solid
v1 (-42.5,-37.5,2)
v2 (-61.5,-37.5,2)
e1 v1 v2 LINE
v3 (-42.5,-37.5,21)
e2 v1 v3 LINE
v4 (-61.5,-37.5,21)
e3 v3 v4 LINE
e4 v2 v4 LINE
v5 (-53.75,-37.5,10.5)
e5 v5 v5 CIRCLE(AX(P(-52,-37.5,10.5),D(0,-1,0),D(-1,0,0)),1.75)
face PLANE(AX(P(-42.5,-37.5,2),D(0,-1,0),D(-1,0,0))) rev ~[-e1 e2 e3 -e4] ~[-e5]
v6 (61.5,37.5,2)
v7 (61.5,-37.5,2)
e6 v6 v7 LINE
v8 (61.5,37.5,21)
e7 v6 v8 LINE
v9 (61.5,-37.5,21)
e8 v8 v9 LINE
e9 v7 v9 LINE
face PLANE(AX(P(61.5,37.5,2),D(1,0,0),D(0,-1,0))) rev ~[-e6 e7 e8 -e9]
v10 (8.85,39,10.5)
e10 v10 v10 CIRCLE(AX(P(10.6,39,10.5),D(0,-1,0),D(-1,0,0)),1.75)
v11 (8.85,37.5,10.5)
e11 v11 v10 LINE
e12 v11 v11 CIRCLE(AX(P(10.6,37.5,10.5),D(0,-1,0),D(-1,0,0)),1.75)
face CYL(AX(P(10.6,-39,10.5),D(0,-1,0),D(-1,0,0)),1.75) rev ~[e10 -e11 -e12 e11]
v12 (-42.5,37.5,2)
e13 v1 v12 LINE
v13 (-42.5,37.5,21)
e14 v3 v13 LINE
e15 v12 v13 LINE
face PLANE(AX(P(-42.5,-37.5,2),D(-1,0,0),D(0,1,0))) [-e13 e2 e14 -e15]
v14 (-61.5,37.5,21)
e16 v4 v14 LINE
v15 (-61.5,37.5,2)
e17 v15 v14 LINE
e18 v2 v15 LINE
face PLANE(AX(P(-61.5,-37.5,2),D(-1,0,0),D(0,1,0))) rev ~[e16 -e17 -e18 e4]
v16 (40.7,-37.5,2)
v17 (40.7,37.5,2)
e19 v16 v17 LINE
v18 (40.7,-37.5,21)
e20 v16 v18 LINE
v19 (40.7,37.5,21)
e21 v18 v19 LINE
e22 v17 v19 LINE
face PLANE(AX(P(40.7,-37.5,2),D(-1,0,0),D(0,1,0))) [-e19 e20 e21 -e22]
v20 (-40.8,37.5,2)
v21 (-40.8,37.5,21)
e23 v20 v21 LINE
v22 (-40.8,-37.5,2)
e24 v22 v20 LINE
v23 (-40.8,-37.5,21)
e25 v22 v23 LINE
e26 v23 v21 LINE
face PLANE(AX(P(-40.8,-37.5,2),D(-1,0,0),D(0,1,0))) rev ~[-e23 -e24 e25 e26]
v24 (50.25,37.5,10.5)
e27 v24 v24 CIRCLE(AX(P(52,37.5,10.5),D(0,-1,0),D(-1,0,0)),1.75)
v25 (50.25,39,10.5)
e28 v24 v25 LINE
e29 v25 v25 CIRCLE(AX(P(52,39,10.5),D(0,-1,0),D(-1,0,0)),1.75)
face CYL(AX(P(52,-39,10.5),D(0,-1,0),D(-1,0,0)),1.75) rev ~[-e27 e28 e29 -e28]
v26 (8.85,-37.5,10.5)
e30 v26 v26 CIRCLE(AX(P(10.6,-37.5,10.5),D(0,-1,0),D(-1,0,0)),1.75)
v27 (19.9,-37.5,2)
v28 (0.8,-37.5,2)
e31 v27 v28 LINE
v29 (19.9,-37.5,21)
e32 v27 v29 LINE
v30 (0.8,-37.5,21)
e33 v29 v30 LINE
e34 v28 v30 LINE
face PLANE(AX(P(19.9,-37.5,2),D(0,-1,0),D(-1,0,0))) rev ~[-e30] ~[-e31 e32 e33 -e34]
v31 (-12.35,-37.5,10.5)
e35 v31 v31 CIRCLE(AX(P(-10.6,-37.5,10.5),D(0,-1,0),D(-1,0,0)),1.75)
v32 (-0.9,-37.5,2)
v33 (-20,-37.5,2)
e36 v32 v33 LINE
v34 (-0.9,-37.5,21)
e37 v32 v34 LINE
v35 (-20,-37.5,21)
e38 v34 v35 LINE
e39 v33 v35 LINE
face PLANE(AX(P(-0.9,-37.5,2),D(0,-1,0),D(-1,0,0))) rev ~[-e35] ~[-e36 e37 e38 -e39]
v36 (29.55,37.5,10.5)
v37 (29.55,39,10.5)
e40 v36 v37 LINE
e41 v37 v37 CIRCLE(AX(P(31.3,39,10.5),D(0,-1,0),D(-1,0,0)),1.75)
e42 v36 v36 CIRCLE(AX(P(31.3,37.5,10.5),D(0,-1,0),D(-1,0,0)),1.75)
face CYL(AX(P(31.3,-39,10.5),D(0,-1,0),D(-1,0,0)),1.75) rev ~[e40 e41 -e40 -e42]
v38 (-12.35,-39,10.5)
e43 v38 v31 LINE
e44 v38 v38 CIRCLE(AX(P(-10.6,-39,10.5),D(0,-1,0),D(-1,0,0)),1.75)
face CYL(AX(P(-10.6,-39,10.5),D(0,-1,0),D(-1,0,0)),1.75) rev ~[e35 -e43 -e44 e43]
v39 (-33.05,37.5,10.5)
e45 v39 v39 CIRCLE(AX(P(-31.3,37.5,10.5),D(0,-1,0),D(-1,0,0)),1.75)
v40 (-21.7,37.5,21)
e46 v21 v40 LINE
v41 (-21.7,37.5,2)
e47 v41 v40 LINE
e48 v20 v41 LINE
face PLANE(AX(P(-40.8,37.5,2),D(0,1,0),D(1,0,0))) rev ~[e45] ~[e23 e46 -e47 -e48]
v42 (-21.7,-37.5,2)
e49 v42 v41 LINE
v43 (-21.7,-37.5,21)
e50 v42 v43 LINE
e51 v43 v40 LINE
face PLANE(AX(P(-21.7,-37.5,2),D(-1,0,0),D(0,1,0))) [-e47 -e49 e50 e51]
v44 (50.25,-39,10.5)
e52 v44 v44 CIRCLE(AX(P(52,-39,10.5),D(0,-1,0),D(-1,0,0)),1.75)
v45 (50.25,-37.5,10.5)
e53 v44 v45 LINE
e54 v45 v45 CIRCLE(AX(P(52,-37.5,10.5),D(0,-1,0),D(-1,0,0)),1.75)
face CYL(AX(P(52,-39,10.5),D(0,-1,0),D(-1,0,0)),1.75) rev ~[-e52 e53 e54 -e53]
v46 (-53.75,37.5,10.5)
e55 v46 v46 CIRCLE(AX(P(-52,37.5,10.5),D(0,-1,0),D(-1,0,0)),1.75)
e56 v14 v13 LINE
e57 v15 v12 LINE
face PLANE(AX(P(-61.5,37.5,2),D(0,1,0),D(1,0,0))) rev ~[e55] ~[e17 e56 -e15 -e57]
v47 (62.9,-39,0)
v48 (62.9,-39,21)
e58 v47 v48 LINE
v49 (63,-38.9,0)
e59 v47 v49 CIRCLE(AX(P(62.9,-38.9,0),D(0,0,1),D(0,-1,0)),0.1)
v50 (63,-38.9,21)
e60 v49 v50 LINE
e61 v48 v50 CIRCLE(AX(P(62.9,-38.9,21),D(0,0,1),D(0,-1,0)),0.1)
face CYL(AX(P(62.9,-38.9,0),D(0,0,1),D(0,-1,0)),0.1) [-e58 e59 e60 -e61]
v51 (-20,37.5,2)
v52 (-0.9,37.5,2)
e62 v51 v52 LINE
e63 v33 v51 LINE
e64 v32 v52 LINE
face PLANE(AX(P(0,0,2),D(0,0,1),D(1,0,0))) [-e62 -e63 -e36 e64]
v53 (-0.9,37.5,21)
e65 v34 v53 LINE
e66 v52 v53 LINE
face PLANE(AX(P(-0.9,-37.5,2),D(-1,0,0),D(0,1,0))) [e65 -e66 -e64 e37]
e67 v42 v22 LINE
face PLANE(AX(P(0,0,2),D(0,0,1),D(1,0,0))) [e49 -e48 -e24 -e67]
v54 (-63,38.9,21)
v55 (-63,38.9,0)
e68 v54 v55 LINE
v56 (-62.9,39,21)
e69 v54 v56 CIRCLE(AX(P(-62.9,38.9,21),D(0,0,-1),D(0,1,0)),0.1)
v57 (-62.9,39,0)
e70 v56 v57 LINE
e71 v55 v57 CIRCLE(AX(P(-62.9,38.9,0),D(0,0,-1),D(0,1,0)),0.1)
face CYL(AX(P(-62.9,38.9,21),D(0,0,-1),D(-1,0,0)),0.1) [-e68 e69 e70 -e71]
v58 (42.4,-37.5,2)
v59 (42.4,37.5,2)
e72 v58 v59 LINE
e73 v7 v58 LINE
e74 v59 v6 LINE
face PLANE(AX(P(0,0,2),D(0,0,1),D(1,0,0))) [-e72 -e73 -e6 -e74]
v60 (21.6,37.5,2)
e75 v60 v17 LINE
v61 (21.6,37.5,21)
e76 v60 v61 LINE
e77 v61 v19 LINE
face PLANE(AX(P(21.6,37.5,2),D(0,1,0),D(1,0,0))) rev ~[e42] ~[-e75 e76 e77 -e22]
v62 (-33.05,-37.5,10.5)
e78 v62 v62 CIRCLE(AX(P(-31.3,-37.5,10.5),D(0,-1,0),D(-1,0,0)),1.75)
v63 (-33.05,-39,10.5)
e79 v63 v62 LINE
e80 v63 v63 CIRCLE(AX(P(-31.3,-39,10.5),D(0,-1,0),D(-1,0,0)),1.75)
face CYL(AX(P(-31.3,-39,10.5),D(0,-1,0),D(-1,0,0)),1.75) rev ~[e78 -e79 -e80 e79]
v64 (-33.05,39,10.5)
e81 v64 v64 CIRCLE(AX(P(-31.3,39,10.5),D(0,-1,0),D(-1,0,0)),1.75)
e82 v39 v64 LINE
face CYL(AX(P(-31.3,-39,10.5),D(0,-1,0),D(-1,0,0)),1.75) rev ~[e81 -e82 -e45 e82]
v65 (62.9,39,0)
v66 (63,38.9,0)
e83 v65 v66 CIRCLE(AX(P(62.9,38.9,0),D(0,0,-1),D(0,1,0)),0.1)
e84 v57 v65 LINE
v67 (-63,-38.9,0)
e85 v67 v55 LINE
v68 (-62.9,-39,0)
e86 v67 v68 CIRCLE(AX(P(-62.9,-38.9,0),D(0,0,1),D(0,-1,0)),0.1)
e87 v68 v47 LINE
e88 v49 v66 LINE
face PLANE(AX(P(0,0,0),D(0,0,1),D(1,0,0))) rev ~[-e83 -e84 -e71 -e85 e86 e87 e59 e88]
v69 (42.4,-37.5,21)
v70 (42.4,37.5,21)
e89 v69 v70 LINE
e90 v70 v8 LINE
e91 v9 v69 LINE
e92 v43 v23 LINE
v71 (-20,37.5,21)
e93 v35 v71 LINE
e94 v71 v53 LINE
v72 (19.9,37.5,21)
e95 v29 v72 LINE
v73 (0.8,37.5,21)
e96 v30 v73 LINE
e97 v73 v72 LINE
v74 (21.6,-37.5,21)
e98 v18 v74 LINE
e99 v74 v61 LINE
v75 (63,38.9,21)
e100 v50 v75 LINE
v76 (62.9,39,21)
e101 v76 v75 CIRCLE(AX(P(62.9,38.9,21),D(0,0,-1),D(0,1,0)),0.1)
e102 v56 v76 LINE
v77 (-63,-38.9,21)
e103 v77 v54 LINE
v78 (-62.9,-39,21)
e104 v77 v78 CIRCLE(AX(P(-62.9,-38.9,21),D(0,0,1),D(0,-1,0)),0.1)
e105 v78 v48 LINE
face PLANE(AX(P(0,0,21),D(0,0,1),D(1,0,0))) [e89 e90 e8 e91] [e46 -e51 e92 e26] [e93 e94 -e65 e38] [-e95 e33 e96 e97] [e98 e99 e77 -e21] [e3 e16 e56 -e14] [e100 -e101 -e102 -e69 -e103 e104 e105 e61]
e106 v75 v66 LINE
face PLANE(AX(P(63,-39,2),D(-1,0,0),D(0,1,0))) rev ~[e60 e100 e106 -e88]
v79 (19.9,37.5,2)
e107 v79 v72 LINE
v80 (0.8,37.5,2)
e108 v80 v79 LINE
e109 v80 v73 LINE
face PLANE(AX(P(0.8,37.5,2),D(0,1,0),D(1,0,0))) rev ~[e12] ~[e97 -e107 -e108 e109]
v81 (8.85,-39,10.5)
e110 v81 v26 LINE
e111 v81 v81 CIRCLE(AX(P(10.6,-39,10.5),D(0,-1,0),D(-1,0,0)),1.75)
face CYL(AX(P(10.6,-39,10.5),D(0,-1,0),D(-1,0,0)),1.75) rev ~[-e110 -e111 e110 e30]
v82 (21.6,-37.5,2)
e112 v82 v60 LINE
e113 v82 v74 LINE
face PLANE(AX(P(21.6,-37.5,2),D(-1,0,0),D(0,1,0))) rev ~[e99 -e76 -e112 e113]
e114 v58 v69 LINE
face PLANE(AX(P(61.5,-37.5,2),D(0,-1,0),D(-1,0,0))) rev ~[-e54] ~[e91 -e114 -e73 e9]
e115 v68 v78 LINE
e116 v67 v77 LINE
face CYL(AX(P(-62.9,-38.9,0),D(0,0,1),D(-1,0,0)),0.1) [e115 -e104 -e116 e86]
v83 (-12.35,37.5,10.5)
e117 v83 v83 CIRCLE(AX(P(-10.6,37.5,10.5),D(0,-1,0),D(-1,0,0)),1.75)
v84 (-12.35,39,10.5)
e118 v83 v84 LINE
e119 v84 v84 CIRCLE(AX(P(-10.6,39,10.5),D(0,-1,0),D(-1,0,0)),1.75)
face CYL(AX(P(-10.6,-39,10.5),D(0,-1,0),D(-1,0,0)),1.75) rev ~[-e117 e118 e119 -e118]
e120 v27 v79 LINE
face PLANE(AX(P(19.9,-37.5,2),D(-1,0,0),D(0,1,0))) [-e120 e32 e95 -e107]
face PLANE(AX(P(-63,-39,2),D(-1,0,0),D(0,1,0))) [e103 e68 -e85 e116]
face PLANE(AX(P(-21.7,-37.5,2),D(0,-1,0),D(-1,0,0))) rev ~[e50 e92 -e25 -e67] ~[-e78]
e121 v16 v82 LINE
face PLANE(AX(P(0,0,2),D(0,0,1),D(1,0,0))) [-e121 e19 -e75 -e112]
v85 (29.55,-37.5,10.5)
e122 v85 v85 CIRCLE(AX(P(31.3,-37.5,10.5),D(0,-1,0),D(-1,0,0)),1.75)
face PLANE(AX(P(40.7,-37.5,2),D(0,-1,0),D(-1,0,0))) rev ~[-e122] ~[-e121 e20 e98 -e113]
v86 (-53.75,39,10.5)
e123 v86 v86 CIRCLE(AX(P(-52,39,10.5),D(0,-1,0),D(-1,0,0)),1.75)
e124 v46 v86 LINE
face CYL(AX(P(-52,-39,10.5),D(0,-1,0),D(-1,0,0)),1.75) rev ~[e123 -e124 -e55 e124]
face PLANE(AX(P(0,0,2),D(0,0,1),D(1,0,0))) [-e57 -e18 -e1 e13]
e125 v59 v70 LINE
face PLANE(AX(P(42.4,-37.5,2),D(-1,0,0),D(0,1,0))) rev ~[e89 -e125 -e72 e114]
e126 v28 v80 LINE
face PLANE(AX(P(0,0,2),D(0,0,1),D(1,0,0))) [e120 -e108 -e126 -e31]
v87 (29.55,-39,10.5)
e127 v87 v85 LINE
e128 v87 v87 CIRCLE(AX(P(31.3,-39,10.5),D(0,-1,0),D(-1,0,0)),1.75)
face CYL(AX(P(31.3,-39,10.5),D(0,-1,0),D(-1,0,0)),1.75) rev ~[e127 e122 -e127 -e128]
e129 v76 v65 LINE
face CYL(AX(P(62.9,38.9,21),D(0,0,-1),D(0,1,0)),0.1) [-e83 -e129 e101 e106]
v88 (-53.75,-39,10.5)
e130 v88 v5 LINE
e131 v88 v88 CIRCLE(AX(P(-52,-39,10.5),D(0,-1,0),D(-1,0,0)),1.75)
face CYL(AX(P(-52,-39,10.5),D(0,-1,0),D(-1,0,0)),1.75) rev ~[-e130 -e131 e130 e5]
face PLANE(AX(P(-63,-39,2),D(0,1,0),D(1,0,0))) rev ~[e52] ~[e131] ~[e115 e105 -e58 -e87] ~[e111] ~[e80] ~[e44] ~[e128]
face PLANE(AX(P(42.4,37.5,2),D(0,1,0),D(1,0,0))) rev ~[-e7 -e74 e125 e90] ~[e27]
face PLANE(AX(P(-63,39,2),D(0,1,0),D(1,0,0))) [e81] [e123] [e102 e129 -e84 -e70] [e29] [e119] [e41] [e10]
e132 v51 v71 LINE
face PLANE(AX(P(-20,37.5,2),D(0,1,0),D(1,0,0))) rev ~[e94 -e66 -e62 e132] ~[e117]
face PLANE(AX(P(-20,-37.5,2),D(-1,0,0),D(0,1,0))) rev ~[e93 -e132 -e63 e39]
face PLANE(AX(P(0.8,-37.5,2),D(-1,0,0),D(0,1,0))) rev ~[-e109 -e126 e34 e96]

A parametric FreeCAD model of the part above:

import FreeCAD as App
import Part
import Sketcher


def edges_at(feature, points):
    """Names of the edges that pass closest to the given points."""
    edges = feature.Shape.Edges
    near = lambda p: min(range(len(edges)), key=lambda i: edges[i].distToShape(Part.Vertex(*p))[0])
    return sorted({f"Edge{near(p) + 1}" for p in points})

doc = App.newDocument("Part")
body = doc.addObject("PartDesign::Body", "Body")

# Sketch on XY plane
sketch1 = body.newObject("Sketcher::SketchObject", "Sketch")
sketch1.AttachmentSupport = (doc.getObject("XY_Plane"), [""])
sketch1.MapMode = "FlatFace"
sketch1.addGeometry([
    Part.LineSegment(App.Vector(-63, 39, 0), App.Vector(-63, -39, 0)),
    Part.LineSegment(App.Vector(-63, -39, 0), App.Vector(63, -39, 0)),
    Part.LineSegment(App.Vector(63, -39, 0), App.Vector(63, 39, 0)),
    Part.LineSegment(App.Vector(63, 39, 0), App.Vector(-63, 39, 0)),
], False)
sketch1.addConstraint([
    Sketcher.Constraint("Coincident", 0, 2, 1, 1),
    Sketcher.Constraint("Coincident", 1, 2, 2, 1),
    Sketcher.Constraint("Coincident", 2, 2, 3, 1),
    Sketcher.Constraint("Coincident", 3, 2, 0, 1),
    Sketcher.Constraint("Vertical", 0),
    Sketcher.Constraint("Horizontal", 1),
    Sketcher.Constraint("Vertical", 2),
    Sketcher.Constraint("Horizontal", 3),
    Sketcher.Constraint("Symmetric", 0, 2, 2, 2, -1, 1),
    Sketcher.Constraint("DistanceX", 1, 1, 1, 2, 126.0),
    Sketcher.Constraint("DistanceY", 0, 2, 0, 1, 78.0),
])
pad1 = body.newObject("PartDesign::Pad", "Pad")
pad1.Profile = sketch1
pad1.Length = 2

# Sketch on XY plane
sketch2 = body.newObject("Sketcher::SketchObject", "Sketch001")
sketch2.AttachmentSupport = (doc.getObject("XY_Plane"), [""])
sketch2.MapMode = "FlatFace"
sketch2.AttachmentOffset = App.Placement(App.Vector(0, 0, 2), App.Rotation())
sketch2.addGeometry([
    Part.LineSegment(App.Vector(-63, 39, 0), App.Vector(-63, -39, 0)),  # 0
    Part.LineSegment(App.Vector(-63, -39, 0), App.Vector(63, -39, 0)),  # 1
    Part.LineSegment(App.Vector(63, -39, 0), App.Vector(63, 39, 0)),  # 2
    Part.LineSegment(App.Vector(63, 39, 0), App.Vector(-63, 39, 0)),  # 3
    Part.LineSegment(App.Vector(-62, 38, 0), App.Vector(-42, 38, 0)),  # 4
    Part.LineSegment(App.Vector(-42, 38, 0), App.Vector(-42, -38, 0)),  # 5
    Part.LineSegment(App.Vector(-42, -38, 0), App.Vector(-62, -38, 0)),  # 6
    Part.LineSegment(App.Vector(-62, -38, 0), App.Vector(-62, 38, 0)),  # 7
    Part.LineSegment(App.Vector(-41, 38, 0), App.Vector(-22, 38, 0)),  # 8
    Part.LineSegment(App.Vector(-22, 38, 0), App.Vector(-22, -38, 0)),  # 9
    Part.LineSegment(App.Vector(-22, -38, 0), App.Vector(-41, -38, 0)),  # 10
    Part.LineSegment(App.Vector(-41, -38, 0), App.Vector(-41, 38, 0)),  # 11
    Part.LineSegment(App.Vector(-20, 38, 0), App.Vector(-1, 38, 0)),  # 12
    Part.LineSegment(App.Vector(-1, 38, 0), App.Vector(-1, -38, 0)),  # 13
    Part.LineSegment(App.Vector(-1, -38, 0), App.Vector(-20, -38, 0)),  # 14
    Part.LineSegment(App.Vector(-20, -38, 0), App.Vector(-20, 38, 0)),  # 15
    Part.LineSegment(App.Vector(1, 38, 0), App.Vector(20, 38, 0)),  # 16
    Part.LineSegment(App.Vector(20, 38, 0), App.Vector(20, -38, 0)),  # 17
    Part.LineSegment(App.Vector(20, -38, 0), App.Vector(1, -38, 0)),  # 18
    Part.LineSegment(App.Vector(1, -38, 0), App.Vector(1, 38, 0)),  # 19
    Part.LineSegment(App.Vector(22, 38, 0), App.Vector(41, 38, 0)),  # 20
    Part.LineSegment(App.Vector(41, 38, 0), App.Vector(41, -38, 0)),  # 21
    Part.LineSegment(App.Vector(41, -38, 0), App.Vector(22, -38, 0)),  # 22
    Part.LineSegment(App.Vector(22, -38, 0), App.Vector(22, 38, 0)),  # 23
    Part.LineSegment(App.Vector(42, 38, 0), App.Vector(62, 38, 0)),  # 24
    Part.LineSegment(App.Vector(62, 38, 0), App.Vector(62, -38, 0)),  # 25
    Part.LineSegment(App.Vector(62, -38, 0), App.Vector(42, -38, 0)),  # 26
    Part.LineSegment(App.Vector(42, -38, 0), App.Vector(42, 38, 0)),  # 27
], False)
sketch2.addConstraint([
    Sketcher.Constraint("Coincident", 0, 2, 1, 1),
    Sketcher.Constraint("Coincident", 1, 2, 2, 1),
    Sketcher.Constraint("Coincident", 2, 2, 3, 1),
    Sketcher.Constraint("Coincident", 3, 2, 0, 1),
    Sketcher.Constraint("Coincident", 4, 2, 5, 1),
    Sketcher.Constraint("Coincident", 5, 2, 6, 1),
    Sketcher.Constraint("Coincident", 6, 2, 7, 1),
    Sketcher.Constraint("Coincident", 7, 2, 4, 1),
    Sketcher.Constraint("Coincident", 8, 2, 9, 1),
    Sketcher.Constraint("Coincident", 9, 2, 10, 1),
    Sketcher.Constraint("Coincident", 10, 2, 11, 1),
    Sketcher.Constraint("Coincident", 11, 2, 8, 1),
    Sketcher.Constraint("Coincident", 12, 2, 13, 1),
    Sketcher.Constraint("Coincident", 13, 2, 14, 1),
    Sketcher.Constraint("Coincident", 14, 2, 15, 1),
    Sketcher.Constraint("Coincident", 15, 2, 12, 1),
    Sketcher.Constraint("Coincident", 16, 2, 17, 1),
    Sketcher.Constraint("Coincident", 17, 2, 18, 1),
    Sketcher.Constraint("Coincident", 18, 2, 19, 1),
    Sketcher.Constraint("Coincident", 19, 2, 16, 1),
    Sketcher.Constraint("Coincident", 20, 2, 21, 1),
    Sketcher.Constraint("Coincident", 21, 2, 22, 1),
    Sketcher.Constraint("Coincident", 22, 2, 23, 1),
    Sketcher.Constraint("Coincident", 23, 2, 20, 1),
    Sketcher.Constraint("Coincident", 24, 2, 25, 1),
    Sketcher.Constraint("Coincident", 25, 2, 26, 1),
    Sketcher.Constraint("Coincident", 26, 2, 27, 1),
    Sketcher.Constraint("Coincident", 27, 2, 24, 1),
    Sketcher.Constraint("Vertical", 0),
    Sketcher.Constraint("Horizontal", 1),
    Sketcher.Constraint("Vertical", 2),
    Sketcher.Constraint("Horizontal", 3),
    Sketcher.Constraint("Horizontal", 4),
    Sketcher.Constraint("Vertical", 5),
    Sketcher.Constraint("Horizontal", 6),
    Sketcher.Constraint("Vertical", 7),
    Sketcher.Constraint("Horizontal", 8),
    Sketcher.Constraint("Vertical", 9),
    Sketcher.Constraint("Horizontal", 10),
    Sketcher.Constraint("Vertical", 11),
    Sketcher.Constraint("Horizontal", 12),
    Sketcher.Constraint("Vertical", 13),
    Sketcher.Constraint("Horizontal", 14),
    Sketcher.Constraint("Vertical", 15),
    Sketcher.Constraint("Horizontal", 16),
    Sketcher.Constraint("Vertical", 17),
    Sketcher.Constraint("Horizontal", 18),
    Sketcher.Constraint("Vertical", 19),
    Sketcher.Constraint("Horizontal", 20),
    Sketcher.Constraint("Vertical", 21),
    Sketcher.Constraint("Horizontal", 22),
    Sketcher.Constraint("Vertical", 23),
    Sketcher.Constraint("Horizontal", 24),
    Sketcher.Constraint("Vertical", 25),
    Sketcher.Constraint("Horizontal", 26),
    Sketcher.Constraint("Vertical", 27),
    Sketcher.Constraint("Symmetric", 0, 2, 2, 2, -1, 1),
    Sketcher.Constraint("Symmetric", 6, 2, 24, 2, -1, 1),
    Sketcher.Constraint("Horizontal", 7, 2, 8, 2),
    Sketcher.Constraint("Horizontal", 6, 2, 9, 2),
    Sketcher.Constraint("Horizontal", 11, 2, 12, 2),
    Sketcher.Constraint("Horizontal", 10, 2, 13, 2),
    Sketcher.Constraint("Horizontal", 15, 2, 16, 2),
    Sketcher.Constraint("Horizontal", 14, 2, 17, 2),
    Sketcher.Constraint("Horizontal", 19, 2, 20, 2),
    Sketcher.Constraint("Horizontal", 18, 2, 21, 2),
    Sketcher.Constraint("Horizontal", 23, 2, 24, 2),
    Sketcher.Constraint("Horizontal", 22, 2, 25, 2),
    Sketcher.Constraint("Equal", 10, 12),
    Sketcher.Constraint("Equal", 14, 16),
    Sketcher.Constraint("Equal", 18, 20),
    Sketcher.Constraint("Equal", 22, 24),
    Sketcher.Constraint("DistanceX", 1, 1, 1, 2, 126.0),
    Sketcher.Constraint("DistanceX", 4, 1, 4, 2, 19.0),
    Sketcher.Constraint("DistanceY", 0, 2, 0, 1, 78.0),
    Sketcher.Constraint("DistanceY", 5, 2, 5, 1, 75.0),
    Sketcher.Constraint("DistanceX", 8, 1, 8, 2, 19.1),
    Sketcher.Constraint("DistanceX", 14, 2, -1, 1, 20.0),
    Sketcher.Constraint("DistanceX", 4, 2, -1, 1, 42.5),
    Sketcher.Constraint("DistanceX", 8, 2, -1, 1, 21.7),
    Sketcher.Constraint("DistanceX", -1, 1, 16, 2, 19.9),
    Sketcher.Constraint("DistanceX", -1, 1, 20, 2, 40.7),
])
pad2 = body.newObject("PartDesign::Pad", "Pad001")
pad2.Profile = sketch2
pad2.Length = 19

# Sketch on XZ plane
sketch3 = body.newObject("Sketcher::SketchObject", "Sketch002")
sketch3.AttachmentSupport = (doc.getObject("XZ_Plane"), [""])
sketch3.MapMode = "FlatFace"
sketch3.AttachmentOffset = App.Placement(App.Vector(0, 0, 39), App.Rotation())
sketch3.addGeometry([
    Part.Circle(App.Vector(-52, 10.5, 0), App.Vector(0, 0, 1), 1.8),  # 0
    Part.Circle(App.Vector(52, 10.5, 0), App.Vector(0, 0, 1), 1.8),  # 1
    Part.Circle(App.Vector(31.3, 10.5, 0), App.Vector(0, 0, 1), 1.8),  # 2
    Part.Circle(App.Vector(10.6, 10.5, 0), App.Vector(0, 0, 1), 1.8),  # 3
    Part.Circle(App.Vector(-10.6, 10.5, 0), App.Vector(0, 0, 1), 1.8),  # 4
    Part.Circle(App.Vector(-31.3, 10.5, 0), App.Vector(0, 0, 1), 1.8),  # 5
], False)
sketch3.addConstraint([
    Sketcher.Constraint("Equal", 0, 1),
    Sketcher.Constraint("Equal", 1, 2),
    Sketcher.Constraint("Equal", 2, 3),
    Sketcher.Constraint("Equal", 3, 4),
    Sketcher.Constraint("Equal", 4, 5),
    Sketcher.Constraint("Symmetric", 0, 3, 1, 3, -2),
    Sketcher.Constraint("Symmetric", 3, 3, 4, 3, -2),
    Sketcher.Constraint("Symmetric", 2, 3, 5, 3, -2),
    Sketcher.Constraint("Horizontal", 1, 3, 2, 3),
    Sketcher.Constraint("Horizontal", 2, 3, 3, 3),
    Sketcher.Constraint("Diameter", 0, 3.5),
    Sketcher.Constraint("DistanceX", 0, 3, -1, 1, 52.0),
    Sketcher.Constraint("DistanceY", -1, 1, 0, 3, 10.5),
    Sketcher.Constraint("DistanceX", -1, 1, 2, 3, 31.3),
    Sketcher.Constraint("DistanceX", -1, 1, 3, 3, 10.6),
])
pocket1 = body.newObject("PartDesign::Pocket", "Pocket")
pocket1.Profile = sketch3
pocket1.Length = 100
doc.recompute()

fillet = body.newObject("PartDesign::Fillet", "Fillet")
fillet.Base = (pocket1, edges_at(pocket1, [
    (-63, -39, 10.5),
    (63, -39, 10.5),
    (63, 39, 10.5),
    (-63, 39, 10.5),
]))
fillet.Radius = 0.1

doc.recompute()
